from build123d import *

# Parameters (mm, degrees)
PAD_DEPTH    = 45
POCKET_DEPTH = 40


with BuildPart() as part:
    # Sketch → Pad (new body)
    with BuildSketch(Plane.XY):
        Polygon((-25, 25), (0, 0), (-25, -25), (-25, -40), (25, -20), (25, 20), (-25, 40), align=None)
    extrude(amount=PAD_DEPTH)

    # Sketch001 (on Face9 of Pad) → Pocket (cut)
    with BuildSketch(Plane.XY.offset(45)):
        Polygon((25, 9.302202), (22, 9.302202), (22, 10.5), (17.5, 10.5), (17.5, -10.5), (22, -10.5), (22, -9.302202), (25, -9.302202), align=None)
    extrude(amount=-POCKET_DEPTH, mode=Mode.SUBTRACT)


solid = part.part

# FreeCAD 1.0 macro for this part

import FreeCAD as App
import Part
import Sketcher
from FreeCAD import Vector


def add_polygon(sketch, points):
    """Adds a closed chain of lines whose ends are joined by coincident constraints."""
    first, n = sketch.GeometryCount, len(points)
    for a, b in zip(points, points[1:] + points[:1]):
        sketch.addGeometry(Part.LineSegment(App.Vector(*a, 0), App.Vector(*b, 0)), False)
    for i in range(n):
        sketch.addConstraint(Sketcher.Constraint("Coincident", first + i, 2, first + (i + 1) % n, 1))

doc = App.newDocument("Part")
body = doc.addObject("PartDesign::Body", "Body")

sketch1 = doc.addObject("Sketcher::SketchObject", "Sketch")
body.addObject(sketch1)
sketch1.AttachmentSupport = (doc.XY_Plane, [""])
sketch1.MapMode = "FlatFace"
add_polygon(sketch1, [(-25, 25), (0, 0), (-25, -25), (-25, -40), (25, -20), (25, 20), (-25, 40)])
sketch1.addConstraint([
    Sketcher.Constraint("Vertical", 2),
    Sketcher.Constraint("Vertical", 4),
    Sketcher.Constraint("Vertical", 6),
    Sketcher.Constraint("Coincident", 0, 2, -1, 1),
    Sketcher.Constraint("Symmetric", 2, 2, 5, 2, -1),
    Sketcher.Constraint("Perpendicular", 0, 1),
    Sketcher.Constraint("Equal", 2, 6),
    Sketcher.Constraint("Equal", 3, 5),
    Sketcher.Constraint("DistanceY", 2, 2, 2, 1, 15.0),
    Sketcher.Constraint("DistanceY", 4, 1, 4, 2, 40.0),
    Sketcher.Constraint("DistanceX", 1, 2, -1, 1, 25.0),
    Sketcher.Constraint("DistanceX", -1, 1, 3, 2, 25.0),
])
pad1 = doc.addObject("PartDesign::Pad", "Pad")
body.addObject(pad1)
pad1.Profile = sketch1
pad1.Length = 45

sketch2 = doc.addObject("Sketcher::SketchObject", "Sketch001")
body.addObject(sketch2)
sketch2.AttachmentSupport = (doc.XY_Plane, [""])
sketch2.MapMode = "FlatFace"
sketch2.AttachmentOffset = App.Placement(Vector(0, 0, 45), App.Rotation())
add_polygon(sketch2, [(25, 9.3), (22, 9.3), (22, 10.5), (17.5, 10.5), (17.5, -10.5), (22, -10.5), (22, -9.3), (25, -9.3)])
sketch2.addConstraint([
    Sketcher.Constraint("Horizontal", 0),
    Sketcher.Constraint("Vertical", 1),
    Sketcher.Constraint("Horizontal", 2),
    Sketcher.Constraint("Vertical", 3),
    Sketcher.Constraint("Horizontal", 4),
    Sketcher.Constraint("Vertical", 5),
    Sketcher.Constraint("Horizontal", 6),
    Sketcher.Constraint("Vertical", 7),
    Sketcher.Constraint("Symmetric", 1, 2, 4, 2, -1),
    Sketcher.Constraint("Equal", 1, 5),
    Sketcher.Constraint("DistanceX", 0, 2, 0, 1, 3.0),
    Sketcher.Constraint("DistanceY", 3, 2, 3, 1, 21.0),
    Sketcher.Constraint("DistanceX", 2, 2, 2, 1, 4.5),
    Sketcher.Constraint("DistanceX", -1, 1, 0, 2, 22.0),
    Sketcher.Constraint("DistanceY", 1, 1, 1, 2, 1.197798),
])
pocket1 = doc.addObject("PartDesign::Pocket", "Pocket")
body.addObject(pocket1)
pocket1.Profile = sketch2
pocket1.Length = 40

doc.recompute()
